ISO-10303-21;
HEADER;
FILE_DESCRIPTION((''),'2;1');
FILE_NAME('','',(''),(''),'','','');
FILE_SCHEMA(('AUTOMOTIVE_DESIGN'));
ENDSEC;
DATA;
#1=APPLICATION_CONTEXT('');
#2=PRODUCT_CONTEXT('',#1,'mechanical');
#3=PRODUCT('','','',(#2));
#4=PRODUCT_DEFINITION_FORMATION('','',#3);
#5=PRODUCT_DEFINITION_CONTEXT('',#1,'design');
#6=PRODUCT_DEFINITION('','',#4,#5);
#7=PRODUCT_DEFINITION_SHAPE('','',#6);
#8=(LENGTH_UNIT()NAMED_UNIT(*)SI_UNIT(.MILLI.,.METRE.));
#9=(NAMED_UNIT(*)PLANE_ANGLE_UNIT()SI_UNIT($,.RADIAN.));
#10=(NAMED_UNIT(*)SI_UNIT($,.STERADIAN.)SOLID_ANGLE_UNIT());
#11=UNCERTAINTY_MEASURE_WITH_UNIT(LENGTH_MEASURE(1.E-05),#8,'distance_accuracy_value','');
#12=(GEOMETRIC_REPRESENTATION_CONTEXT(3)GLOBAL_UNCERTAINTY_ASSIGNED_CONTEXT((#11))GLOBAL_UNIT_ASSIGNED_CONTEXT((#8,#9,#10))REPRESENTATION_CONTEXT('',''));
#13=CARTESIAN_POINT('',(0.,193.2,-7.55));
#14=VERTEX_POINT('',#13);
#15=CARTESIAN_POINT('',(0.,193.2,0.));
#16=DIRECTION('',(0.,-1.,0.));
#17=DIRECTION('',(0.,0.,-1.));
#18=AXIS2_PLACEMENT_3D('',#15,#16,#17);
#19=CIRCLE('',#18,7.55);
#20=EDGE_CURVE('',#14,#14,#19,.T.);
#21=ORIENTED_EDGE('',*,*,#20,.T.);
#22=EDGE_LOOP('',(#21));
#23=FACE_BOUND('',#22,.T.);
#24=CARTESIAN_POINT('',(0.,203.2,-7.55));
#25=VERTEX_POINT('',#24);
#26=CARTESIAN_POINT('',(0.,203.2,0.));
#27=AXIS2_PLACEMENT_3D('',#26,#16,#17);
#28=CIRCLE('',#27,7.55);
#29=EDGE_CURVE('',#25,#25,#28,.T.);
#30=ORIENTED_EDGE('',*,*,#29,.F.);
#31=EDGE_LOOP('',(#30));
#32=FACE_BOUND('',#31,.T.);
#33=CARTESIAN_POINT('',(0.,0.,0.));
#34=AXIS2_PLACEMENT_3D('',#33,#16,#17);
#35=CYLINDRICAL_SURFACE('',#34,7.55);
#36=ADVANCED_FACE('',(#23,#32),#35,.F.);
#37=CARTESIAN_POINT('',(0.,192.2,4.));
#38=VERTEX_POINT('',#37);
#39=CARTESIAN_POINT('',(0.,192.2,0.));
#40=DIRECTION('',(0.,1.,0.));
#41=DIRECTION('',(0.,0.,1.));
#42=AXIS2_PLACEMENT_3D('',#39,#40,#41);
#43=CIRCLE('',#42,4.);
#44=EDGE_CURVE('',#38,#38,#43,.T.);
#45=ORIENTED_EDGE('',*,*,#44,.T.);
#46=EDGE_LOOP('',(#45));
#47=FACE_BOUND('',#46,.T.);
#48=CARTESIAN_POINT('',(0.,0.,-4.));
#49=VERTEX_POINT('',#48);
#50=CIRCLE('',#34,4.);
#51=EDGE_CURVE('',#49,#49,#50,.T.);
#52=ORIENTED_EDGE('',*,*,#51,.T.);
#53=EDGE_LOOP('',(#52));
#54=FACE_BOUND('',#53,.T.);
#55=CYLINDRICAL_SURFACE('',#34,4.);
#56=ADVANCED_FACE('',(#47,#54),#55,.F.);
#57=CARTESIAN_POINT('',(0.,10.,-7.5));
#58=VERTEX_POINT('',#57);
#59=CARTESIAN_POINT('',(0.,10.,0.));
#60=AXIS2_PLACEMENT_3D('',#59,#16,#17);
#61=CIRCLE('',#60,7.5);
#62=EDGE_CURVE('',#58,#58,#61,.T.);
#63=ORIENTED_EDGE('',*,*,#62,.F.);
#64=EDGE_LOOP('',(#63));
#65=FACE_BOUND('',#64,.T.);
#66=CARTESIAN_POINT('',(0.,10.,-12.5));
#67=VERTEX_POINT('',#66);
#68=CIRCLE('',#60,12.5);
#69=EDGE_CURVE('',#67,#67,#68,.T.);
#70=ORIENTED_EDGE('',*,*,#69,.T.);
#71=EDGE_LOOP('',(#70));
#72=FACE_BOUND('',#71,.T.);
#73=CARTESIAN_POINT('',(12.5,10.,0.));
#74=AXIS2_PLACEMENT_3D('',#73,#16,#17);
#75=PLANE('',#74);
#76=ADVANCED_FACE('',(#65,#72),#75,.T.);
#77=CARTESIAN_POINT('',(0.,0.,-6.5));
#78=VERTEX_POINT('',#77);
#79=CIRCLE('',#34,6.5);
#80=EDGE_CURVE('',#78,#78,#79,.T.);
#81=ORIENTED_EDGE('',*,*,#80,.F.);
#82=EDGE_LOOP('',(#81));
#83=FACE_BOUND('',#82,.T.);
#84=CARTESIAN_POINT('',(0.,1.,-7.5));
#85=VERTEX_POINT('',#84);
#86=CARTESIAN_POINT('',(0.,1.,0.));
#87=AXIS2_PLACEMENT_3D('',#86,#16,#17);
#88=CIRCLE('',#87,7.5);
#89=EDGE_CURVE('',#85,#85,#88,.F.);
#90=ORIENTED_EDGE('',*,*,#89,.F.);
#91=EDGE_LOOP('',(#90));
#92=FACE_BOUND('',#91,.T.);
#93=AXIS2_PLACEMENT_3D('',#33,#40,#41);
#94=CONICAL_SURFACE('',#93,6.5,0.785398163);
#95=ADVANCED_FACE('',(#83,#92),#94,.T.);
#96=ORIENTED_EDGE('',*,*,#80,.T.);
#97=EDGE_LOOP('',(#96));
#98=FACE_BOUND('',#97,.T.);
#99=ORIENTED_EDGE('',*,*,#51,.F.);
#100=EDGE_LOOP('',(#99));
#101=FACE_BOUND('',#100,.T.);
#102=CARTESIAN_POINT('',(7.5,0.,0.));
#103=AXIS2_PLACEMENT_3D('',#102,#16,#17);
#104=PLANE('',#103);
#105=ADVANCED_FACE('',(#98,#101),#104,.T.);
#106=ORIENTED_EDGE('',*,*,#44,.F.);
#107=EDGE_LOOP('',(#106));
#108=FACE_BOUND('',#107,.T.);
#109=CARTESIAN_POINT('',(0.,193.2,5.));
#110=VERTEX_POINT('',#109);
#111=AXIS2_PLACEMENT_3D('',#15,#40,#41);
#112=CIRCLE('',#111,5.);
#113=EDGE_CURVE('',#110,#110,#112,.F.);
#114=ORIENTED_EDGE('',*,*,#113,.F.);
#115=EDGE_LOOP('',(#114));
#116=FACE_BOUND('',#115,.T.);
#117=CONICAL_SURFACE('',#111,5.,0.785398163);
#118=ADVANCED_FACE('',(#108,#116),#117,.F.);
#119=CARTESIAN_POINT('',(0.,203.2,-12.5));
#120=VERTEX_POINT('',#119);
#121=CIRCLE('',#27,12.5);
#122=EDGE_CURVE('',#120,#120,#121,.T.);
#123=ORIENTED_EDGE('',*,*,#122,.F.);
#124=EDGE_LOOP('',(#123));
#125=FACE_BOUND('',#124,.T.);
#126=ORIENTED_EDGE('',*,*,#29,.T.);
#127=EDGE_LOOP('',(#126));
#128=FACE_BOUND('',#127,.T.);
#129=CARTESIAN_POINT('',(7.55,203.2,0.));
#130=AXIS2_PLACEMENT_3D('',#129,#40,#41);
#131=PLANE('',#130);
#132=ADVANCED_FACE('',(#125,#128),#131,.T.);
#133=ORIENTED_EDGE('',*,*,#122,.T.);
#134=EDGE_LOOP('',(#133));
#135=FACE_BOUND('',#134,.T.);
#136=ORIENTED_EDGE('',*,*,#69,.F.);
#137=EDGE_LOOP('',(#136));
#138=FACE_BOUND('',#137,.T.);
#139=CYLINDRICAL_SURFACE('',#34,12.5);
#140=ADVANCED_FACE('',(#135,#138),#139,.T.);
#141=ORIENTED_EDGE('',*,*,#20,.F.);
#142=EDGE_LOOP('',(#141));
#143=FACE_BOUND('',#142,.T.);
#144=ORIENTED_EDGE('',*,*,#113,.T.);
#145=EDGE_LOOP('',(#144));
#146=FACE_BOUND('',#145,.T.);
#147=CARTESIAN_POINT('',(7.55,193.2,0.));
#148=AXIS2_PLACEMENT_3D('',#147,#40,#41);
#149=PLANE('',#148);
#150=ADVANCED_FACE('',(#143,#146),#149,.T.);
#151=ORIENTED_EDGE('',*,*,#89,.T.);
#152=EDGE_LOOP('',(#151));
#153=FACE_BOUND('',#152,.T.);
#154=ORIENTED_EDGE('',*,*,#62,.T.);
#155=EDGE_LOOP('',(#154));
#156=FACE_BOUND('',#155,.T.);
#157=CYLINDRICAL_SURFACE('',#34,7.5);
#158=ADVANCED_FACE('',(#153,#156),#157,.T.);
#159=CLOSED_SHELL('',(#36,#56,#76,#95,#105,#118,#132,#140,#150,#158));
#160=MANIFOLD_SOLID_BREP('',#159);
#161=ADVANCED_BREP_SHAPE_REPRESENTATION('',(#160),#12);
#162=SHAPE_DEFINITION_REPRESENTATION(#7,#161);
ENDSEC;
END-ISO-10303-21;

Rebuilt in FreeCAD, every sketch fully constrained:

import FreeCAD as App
import Part
import Sketcher


def edges_at(feature, points):
    """Names of the edges that pass closest to the given points."""
    edges = feature.Shape.Edges
    near = lambda p: min(range(len(edges)), key=lambda i: edges[i].distToShape(Part.Vertex(*p))[0])
    return sorted({f"Edge{near(p) + 1}" for p in points})


def add_polygon(sketch, points):
    """Adds a closed chain of lines whose ends are joined by coincident constraints."""
    first, n = sketch.GeometryCount, len(points)
    for a, b in zip(points, points[1:] + points[:1]):
        sketch.addGeometry(Part.LineSegment(App.Vector(*a, 0), App.Vector(*b, 0)), False)
    for i in range(n):
        sketch.addConstraint(Sketcher.Constraint("Coincident", first + i, 2, first + (i + 1) % n, 1))

doc = App.newDocument("Part")
body = doc.addObject("PartDesign::Body", "Body")

# Sketch on XY plane
sketch1 = body.newObject("Sketcher::SketchObject", "Sketch")
sketch1.AttachmentSupport = (doc.getObject("XY_Plane"), [""])
sketch1.MapMode = "FlatFace"
add_polygon(sketch1, [(4, 193.2), (4, 0), (7.5, 0), (7.5, 10), (12.5, 10), (12.5, 203.2), (7.5, 203.2), (7.5, 193.2)])  # lines 0-7
sketch1.addConstraint([
    Sketcher.Constraint("Vertical", 0),
    Sketcher.Constraint("Horizontal", 1),
    Sketcher.Constraint("Vertical", 2),
    Sketcher.Constraint("Horizontal", 3),
    Sketcher.Constraint("Vertical", 4),
    Sketcher.Constraint("Horizontal", 5),
    Sketcher.Constraint("Vertical", 6),
    Sketcher.Constraint("Horizontal", 7),
    Sketcher.Constraint("PointOnObject", 0, 2, -1),
    Sketcher.Constraint("Equal", 0, 4),
    Sketcher.Constraint("DistanceX", 3, 1, 3, 2, 5.0),
    Sketcher.Constraint("DistanceY", 2, 1, 2, 2, 10.0),
    Sketcher.Constraint("DistanceX", 1, 1, 1, 2, 3.5),
    Sketcher.Constraint("DistanceY", 0, 2, 0, 1, 193.2),
    Sketcher.Constraint("DistanceX", -1, 1, 0, 2, 4.0),
    Sketcher.Constraint("DistanceX", 5, 2, 5, 1, 4.95),
])
revolution = body.newObject("PartDesign::Revolution", "Revolution")
revolution.Profile = sketch1
revolution.ReferenceAxis = (sketch1, ["V_Axis"])
revolution.Angle = 360
doc.recompute()

chamfer = body.newObject("PartDesign::Chamfer", "Chamfer")
chamfer.Base = (revolution, edges_at(revolution, [(0, 193.2, 4)]))
chamfer.Size = 1
doc.recompute()

chamfer2 = body.newObject("PartDesign::Chamfer", "Chamfer001")
chamfer2.Base = (chamfer, edges_at(chamfer, [(0, 0, 7.5)]))
chamfer2.Size = 1

doc.recompute()
